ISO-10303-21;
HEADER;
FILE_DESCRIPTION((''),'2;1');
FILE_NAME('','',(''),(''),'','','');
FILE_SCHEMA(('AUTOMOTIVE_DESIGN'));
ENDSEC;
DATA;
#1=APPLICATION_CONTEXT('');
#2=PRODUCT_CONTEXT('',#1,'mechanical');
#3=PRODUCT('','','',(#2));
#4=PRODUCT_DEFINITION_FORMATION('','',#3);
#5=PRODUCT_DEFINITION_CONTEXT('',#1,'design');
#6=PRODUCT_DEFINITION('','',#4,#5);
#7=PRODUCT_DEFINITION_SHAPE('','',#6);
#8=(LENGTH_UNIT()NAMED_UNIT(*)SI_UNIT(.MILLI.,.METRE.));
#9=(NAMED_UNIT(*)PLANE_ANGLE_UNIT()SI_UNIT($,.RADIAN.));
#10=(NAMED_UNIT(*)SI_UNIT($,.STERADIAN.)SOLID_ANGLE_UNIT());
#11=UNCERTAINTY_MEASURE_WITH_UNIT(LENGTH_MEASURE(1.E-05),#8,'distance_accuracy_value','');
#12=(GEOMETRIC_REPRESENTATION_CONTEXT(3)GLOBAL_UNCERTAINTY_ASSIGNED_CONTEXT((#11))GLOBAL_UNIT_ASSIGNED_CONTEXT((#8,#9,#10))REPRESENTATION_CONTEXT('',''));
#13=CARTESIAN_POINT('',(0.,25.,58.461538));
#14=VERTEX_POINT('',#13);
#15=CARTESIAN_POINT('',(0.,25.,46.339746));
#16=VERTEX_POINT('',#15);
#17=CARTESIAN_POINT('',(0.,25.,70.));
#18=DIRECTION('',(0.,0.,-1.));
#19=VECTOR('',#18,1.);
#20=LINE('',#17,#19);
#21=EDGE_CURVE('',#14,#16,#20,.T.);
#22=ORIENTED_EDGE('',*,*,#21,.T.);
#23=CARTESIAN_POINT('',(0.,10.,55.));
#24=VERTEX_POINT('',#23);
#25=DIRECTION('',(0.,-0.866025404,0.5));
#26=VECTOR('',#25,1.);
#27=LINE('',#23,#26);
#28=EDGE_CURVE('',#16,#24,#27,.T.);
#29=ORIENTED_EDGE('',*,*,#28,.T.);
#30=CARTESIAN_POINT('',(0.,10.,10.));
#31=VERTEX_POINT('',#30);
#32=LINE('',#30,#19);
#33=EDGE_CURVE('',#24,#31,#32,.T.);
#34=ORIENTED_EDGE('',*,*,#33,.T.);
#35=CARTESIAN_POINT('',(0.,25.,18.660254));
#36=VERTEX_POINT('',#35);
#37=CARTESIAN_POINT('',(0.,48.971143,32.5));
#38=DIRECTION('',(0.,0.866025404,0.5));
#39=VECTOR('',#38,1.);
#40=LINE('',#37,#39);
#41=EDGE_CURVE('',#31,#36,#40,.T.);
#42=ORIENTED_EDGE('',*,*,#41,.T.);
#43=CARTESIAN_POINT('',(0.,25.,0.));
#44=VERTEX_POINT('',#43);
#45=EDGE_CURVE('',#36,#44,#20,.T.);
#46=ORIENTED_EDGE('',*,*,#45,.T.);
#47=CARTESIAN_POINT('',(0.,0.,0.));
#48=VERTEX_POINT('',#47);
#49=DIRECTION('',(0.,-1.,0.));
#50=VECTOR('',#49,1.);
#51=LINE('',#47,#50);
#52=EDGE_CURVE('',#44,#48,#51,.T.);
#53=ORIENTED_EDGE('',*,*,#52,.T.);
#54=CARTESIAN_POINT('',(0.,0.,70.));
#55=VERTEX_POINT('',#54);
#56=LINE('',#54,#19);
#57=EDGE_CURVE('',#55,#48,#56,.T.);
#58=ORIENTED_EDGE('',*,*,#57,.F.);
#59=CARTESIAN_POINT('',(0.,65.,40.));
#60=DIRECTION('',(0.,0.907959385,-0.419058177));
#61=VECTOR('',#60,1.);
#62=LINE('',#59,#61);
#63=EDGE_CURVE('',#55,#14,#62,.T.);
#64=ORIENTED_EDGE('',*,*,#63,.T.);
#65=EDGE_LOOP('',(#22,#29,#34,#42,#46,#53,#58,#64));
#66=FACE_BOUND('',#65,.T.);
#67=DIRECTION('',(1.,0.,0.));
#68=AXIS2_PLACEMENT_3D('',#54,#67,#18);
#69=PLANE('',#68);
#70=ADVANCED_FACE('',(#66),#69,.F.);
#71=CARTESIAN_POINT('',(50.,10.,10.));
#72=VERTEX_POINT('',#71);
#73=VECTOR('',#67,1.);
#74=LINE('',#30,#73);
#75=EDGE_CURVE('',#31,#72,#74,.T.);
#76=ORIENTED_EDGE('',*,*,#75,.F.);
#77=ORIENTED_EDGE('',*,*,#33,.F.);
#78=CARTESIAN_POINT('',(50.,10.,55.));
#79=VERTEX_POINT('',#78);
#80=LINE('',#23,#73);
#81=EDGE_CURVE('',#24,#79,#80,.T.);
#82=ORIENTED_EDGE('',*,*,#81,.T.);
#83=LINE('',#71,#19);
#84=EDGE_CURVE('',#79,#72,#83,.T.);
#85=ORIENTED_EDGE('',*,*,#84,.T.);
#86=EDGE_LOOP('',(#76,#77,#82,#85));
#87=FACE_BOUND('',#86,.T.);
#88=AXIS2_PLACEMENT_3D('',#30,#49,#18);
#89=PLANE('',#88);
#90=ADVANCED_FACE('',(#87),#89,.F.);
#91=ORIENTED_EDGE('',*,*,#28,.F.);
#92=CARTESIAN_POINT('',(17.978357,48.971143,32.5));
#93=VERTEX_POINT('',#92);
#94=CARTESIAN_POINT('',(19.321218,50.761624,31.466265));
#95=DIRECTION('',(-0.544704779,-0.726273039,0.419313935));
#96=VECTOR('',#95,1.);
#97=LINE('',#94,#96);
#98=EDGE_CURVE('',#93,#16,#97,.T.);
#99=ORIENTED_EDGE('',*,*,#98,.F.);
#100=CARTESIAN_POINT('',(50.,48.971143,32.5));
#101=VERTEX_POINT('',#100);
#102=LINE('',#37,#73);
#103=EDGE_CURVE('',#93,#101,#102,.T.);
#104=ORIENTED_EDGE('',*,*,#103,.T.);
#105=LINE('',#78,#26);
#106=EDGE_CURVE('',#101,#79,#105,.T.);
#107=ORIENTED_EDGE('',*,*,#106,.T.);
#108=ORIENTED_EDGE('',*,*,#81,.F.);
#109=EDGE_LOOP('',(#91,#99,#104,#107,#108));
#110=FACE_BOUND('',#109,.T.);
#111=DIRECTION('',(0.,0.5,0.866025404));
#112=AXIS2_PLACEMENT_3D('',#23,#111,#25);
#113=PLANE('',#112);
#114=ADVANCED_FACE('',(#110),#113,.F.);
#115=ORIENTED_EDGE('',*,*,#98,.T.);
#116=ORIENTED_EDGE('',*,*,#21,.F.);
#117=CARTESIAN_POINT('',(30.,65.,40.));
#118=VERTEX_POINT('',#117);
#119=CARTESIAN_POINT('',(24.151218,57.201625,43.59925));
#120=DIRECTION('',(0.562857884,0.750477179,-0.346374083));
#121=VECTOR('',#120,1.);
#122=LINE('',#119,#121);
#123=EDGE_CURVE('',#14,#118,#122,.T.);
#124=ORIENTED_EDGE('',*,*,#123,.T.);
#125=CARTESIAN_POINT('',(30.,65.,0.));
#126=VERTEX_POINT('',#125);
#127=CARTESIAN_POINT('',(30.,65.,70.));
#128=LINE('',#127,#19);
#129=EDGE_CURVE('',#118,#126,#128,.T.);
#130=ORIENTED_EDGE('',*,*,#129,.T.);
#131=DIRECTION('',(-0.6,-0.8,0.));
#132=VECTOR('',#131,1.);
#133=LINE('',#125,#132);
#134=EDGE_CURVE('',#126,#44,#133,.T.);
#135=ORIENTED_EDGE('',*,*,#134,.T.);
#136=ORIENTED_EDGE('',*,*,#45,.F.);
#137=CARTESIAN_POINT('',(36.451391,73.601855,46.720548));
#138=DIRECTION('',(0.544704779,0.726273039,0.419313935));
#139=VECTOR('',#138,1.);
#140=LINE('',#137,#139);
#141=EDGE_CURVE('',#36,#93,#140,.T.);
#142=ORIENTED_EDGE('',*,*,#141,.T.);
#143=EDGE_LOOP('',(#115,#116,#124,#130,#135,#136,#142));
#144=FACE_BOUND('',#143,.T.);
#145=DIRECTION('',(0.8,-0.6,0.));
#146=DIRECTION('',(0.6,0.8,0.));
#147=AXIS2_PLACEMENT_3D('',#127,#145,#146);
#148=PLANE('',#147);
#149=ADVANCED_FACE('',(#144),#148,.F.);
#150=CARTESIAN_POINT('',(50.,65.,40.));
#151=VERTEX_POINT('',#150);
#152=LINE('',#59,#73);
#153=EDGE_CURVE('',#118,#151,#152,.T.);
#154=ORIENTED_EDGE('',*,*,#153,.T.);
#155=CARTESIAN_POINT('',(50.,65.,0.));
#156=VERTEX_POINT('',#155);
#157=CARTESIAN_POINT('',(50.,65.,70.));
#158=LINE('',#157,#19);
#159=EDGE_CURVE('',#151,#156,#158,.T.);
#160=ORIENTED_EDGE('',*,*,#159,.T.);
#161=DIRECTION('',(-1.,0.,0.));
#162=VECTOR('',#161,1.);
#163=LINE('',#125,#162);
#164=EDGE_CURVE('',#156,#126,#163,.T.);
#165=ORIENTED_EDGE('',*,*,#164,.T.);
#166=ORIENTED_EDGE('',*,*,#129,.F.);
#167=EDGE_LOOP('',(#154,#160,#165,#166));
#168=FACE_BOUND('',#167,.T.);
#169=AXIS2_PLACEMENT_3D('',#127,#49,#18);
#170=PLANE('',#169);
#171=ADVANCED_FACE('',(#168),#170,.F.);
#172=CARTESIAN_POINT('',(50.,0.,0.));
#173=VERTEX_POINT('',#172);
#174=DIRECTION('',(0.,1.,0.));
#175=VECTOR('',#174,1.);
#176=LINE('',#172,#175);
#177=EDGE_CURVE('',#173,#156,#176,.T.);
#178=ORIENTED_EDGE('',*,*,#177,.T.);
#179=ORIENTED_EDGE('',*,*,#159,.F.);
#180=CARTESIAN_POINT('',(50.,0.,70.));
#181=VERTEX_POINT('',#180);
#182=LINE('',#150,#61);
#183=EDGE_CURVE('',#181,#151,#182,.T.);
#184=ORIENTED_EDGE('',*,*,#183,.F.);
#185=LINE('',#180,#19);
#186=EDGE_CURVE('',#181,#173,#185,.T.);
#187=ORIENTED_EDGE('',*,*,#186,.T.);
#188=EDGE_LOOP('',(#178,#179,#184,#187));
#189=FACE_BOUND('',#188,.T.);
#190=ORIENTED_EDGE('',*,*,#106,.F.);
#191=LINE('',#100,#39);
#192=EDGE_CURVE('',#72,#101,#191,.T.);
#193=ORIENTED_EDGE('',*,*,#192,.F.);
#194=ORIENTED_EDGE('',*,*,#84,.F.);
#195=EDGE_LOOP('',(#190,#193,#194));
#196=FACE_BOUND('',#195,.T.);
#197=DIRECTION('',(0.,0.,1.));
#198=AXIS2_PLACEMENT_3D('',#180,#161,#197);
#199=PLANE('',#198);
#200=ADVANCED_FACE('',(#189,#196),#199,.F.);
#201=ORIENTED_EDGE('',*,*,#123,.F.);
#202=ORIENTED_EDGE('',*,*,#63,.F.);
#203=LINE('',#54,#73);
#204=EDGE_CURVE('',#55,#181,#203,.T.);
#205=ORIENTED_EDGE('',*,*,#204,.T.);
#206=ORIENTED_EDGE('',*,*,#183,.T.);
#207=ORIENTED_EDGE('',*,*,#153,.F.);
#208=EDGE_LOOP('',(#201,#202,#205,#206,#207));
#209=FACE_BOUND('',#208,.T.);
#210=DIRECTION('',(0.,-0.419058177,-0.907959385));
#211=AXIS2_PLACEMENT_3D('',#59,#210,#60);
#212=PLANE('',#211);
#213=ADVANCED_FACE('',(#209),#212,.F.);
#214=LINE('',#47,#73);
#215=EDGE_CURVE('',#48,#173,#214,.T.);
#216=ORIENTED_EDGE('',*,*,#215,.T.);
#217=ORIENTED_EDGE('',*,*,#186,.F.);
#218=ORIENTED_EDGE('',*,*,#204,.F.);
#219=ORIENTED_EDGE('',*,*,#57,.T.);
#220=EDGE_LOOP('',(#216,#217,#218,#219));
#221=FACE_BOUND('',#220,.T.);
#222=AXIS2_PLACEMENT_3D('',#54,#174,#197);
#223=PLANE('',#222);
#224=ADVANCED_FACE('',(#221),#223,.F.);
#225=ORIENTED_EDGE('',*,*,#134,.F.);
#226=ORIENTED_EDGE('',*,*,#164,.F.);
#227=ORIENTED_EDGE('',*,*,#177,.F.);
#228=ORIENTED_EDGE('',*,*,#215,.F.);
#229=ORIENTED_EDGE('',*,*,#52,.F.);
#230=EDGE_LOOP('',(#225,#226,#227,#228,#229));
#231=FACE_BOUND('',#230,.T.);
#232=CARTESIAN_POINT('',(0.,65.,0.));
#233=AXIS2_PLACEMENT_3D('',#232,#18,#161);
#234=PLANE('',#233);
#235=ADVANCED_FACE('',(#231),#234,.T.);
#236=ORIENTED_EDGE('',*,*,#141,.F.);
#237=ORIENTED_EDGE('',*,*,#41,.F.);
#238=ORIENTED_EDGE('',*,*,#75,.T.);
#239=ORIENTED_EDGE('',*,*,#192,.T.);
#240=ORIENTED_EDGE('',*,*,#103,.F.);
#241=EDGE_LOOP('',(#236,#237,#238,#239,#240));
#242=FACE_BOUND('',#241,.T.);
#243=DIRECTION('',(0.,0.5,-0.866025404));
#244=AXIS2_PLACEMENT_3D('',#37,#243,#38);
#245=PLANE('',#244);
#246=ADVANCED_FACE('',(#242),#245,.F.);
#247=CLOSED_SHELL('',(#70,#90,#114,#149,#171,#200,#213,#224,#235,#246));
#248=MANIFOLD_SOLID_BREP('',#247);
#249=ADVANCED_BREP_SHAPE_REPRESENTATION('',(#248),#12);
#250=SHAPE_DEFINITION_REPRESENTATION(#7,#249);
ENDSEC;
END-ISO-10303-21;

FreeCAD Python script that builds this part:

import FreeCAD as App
import Part
import Sketcher
Q = App.Units.Quantity

doc = App.newDocument("Part")
body = doc.addObject("PartDesign::Body", "Body")

# Sketch on XY plane
sketch1 = body.newObject("Sketcher::SketchObject", "Sketch")
sketch1.AttachmentSupport = (doc.getObject("XY_Plane"), [""])
sketch1.MapMode = "FlatFace"
sketch1.addGeometry([
    Part.LineSegment(App.Vector(30, 65, 0), App.Vector(0, 25, 0)),  # 0
    Part.LineSegment(App.Vector(0, 25, 0), App.Vector(0, 0, 0)),  # 1
    Part.LineSegment(App.Vector(0, 0, 0), App.Vector(50, 0, 0)),  # 2
    Part.LineSegment(App.Vector(50, 0, 0), App.Vector(50, 65, 0)),  # 3
    Part.LineSegment(App.Vector(50, 65, 0), App.Vector(30, 65, 0)),  # 4
], False)
sketch1.addConstraint([
    Sketcher.Constraint("Coincident", 0, 2, 1, 1),
    Sketcher.Constraint("Coincident", 1, 2, 2, 1),
    Sketcher.Constraint("Coincident", 2, 2, 3, 1),
    Sketcher.Constraint("Coincident", 3, 2, 4, 1),
    Sketcher.Constraint("Coincident", 4, 2, 0, 1),
    Sketcher.Constraint("Vertical", 1),
    Sketcher.Constraint("Horizontal", 2),
    Sketcher.Constraint("Vertical", 3),
    Sketcher.Constraint("Horizontal", 4),
    Sketcher.Constraint("Coincident", 1, 2, -1, 1),
    Sketcher.Constraint("DistanceX", 2, 1, 2, 2, 50.0),
    Sketcher.Constraint("DistanceX", 4, 2, 4, 1, 20.0),
    Sketcher.Constraint("DistanceY", 1, 2, 1, 1, 25.0),
    Sketcher.Constraint("DistanceY", 3, 1, 3, 2, 65.0),
])
pad1 = body.newObject("PartDesign::Pad", "Pad")
pad1.Profile = sketch1
pad1.Length = 70

# Sketch on YZ plane
sketch2 = body.newObject("Sketcher::SketchObject", "Sketch001")
sketch2.AttachmentSupport = (doc.getObject("YZ_Plane"), [""])
sketch2.MapMode = "FlatFace"
sketch2.AttachmentOffset = App.Placement(App.Vector(0, 0, 50), App.Rotation())
sketch2.addGeometry([
    Part.LineSegment(App.Vector(65, 70, 0), App.Vector(0, 70, 0)),  # 0
    Part.LineSegment(App.Vector(0, 70, 0), App.Vector(65, 40, 0)),  # 1
    Part.LineSegment(App.Vector(65, 40, 0), App.Vector(65, 70, 0)),  # 2
    Part.LineSegment(App.Vector(10, 10, 0), App.Vector(49, 32, 0)),  # 3
    Part.LineSegment(App.Vector(49, 32, 0), App.Vector(10, 55, 0)),  # 4
    Part.LineSegment(App.Vector(10, 55, 0), App.Vector(10, 10, 0)),  # 5
], False)
sketch2.addConstraint([
    Sketcher.Constraint("Coincident", 0, 2, 1, 1),
    Sketcher.Constraint("Coincident", 1, 2, 2, 1),
    Sketcher.Constraint("Coincident", 2, 2, 0, 1),
    Sketcher.Constraint("Coincident", 3, 2, 4, 1),
    Sketcher.Constraint("Coincident", 4, 2, 5, 1),
    Sketcher.Constraint("Coincident", 5, 2, 3, 1),
    Sketcher.Constraint("Horizontal", 0),
    Sketcher.Constraint("Vertical", 2),
    Sketcher.Constraint("Vertical", 5),
    Sketcher.Constraint("PointOnObject", 0, 2, -2),
    Sketcher.Constraint("Equal", 3, 4),
    Sketcher.Constraint("DistanceX", 0, 2, 0, 1, 65.0),
    Sketcher.Constraint("DistanceY", 2, 1, 2, 2, 30.0),
    Sketcher.Constraint("DistanceY", 5, 2, 5, 1, 45.0),
    Sketcher.Constraint("Angle", 3, Q("30 deg")),
    Sketcher.Constraint("DistanceY", -1, 1, 0, 2, 70.0),
    Sketcher.Constraint("DistanceX", -1, 1, 4, 2, 10.0),
    Sketcher.Constraint("DistanceY", -1, 1, 4, 2, 55.0),
])
pocket1 = body.newObject("PartDesign::Pocket", "Pocket")
pocket1.Profile = sketch2
pocket1.Type = "ThroughAll"

doc.recompute()
